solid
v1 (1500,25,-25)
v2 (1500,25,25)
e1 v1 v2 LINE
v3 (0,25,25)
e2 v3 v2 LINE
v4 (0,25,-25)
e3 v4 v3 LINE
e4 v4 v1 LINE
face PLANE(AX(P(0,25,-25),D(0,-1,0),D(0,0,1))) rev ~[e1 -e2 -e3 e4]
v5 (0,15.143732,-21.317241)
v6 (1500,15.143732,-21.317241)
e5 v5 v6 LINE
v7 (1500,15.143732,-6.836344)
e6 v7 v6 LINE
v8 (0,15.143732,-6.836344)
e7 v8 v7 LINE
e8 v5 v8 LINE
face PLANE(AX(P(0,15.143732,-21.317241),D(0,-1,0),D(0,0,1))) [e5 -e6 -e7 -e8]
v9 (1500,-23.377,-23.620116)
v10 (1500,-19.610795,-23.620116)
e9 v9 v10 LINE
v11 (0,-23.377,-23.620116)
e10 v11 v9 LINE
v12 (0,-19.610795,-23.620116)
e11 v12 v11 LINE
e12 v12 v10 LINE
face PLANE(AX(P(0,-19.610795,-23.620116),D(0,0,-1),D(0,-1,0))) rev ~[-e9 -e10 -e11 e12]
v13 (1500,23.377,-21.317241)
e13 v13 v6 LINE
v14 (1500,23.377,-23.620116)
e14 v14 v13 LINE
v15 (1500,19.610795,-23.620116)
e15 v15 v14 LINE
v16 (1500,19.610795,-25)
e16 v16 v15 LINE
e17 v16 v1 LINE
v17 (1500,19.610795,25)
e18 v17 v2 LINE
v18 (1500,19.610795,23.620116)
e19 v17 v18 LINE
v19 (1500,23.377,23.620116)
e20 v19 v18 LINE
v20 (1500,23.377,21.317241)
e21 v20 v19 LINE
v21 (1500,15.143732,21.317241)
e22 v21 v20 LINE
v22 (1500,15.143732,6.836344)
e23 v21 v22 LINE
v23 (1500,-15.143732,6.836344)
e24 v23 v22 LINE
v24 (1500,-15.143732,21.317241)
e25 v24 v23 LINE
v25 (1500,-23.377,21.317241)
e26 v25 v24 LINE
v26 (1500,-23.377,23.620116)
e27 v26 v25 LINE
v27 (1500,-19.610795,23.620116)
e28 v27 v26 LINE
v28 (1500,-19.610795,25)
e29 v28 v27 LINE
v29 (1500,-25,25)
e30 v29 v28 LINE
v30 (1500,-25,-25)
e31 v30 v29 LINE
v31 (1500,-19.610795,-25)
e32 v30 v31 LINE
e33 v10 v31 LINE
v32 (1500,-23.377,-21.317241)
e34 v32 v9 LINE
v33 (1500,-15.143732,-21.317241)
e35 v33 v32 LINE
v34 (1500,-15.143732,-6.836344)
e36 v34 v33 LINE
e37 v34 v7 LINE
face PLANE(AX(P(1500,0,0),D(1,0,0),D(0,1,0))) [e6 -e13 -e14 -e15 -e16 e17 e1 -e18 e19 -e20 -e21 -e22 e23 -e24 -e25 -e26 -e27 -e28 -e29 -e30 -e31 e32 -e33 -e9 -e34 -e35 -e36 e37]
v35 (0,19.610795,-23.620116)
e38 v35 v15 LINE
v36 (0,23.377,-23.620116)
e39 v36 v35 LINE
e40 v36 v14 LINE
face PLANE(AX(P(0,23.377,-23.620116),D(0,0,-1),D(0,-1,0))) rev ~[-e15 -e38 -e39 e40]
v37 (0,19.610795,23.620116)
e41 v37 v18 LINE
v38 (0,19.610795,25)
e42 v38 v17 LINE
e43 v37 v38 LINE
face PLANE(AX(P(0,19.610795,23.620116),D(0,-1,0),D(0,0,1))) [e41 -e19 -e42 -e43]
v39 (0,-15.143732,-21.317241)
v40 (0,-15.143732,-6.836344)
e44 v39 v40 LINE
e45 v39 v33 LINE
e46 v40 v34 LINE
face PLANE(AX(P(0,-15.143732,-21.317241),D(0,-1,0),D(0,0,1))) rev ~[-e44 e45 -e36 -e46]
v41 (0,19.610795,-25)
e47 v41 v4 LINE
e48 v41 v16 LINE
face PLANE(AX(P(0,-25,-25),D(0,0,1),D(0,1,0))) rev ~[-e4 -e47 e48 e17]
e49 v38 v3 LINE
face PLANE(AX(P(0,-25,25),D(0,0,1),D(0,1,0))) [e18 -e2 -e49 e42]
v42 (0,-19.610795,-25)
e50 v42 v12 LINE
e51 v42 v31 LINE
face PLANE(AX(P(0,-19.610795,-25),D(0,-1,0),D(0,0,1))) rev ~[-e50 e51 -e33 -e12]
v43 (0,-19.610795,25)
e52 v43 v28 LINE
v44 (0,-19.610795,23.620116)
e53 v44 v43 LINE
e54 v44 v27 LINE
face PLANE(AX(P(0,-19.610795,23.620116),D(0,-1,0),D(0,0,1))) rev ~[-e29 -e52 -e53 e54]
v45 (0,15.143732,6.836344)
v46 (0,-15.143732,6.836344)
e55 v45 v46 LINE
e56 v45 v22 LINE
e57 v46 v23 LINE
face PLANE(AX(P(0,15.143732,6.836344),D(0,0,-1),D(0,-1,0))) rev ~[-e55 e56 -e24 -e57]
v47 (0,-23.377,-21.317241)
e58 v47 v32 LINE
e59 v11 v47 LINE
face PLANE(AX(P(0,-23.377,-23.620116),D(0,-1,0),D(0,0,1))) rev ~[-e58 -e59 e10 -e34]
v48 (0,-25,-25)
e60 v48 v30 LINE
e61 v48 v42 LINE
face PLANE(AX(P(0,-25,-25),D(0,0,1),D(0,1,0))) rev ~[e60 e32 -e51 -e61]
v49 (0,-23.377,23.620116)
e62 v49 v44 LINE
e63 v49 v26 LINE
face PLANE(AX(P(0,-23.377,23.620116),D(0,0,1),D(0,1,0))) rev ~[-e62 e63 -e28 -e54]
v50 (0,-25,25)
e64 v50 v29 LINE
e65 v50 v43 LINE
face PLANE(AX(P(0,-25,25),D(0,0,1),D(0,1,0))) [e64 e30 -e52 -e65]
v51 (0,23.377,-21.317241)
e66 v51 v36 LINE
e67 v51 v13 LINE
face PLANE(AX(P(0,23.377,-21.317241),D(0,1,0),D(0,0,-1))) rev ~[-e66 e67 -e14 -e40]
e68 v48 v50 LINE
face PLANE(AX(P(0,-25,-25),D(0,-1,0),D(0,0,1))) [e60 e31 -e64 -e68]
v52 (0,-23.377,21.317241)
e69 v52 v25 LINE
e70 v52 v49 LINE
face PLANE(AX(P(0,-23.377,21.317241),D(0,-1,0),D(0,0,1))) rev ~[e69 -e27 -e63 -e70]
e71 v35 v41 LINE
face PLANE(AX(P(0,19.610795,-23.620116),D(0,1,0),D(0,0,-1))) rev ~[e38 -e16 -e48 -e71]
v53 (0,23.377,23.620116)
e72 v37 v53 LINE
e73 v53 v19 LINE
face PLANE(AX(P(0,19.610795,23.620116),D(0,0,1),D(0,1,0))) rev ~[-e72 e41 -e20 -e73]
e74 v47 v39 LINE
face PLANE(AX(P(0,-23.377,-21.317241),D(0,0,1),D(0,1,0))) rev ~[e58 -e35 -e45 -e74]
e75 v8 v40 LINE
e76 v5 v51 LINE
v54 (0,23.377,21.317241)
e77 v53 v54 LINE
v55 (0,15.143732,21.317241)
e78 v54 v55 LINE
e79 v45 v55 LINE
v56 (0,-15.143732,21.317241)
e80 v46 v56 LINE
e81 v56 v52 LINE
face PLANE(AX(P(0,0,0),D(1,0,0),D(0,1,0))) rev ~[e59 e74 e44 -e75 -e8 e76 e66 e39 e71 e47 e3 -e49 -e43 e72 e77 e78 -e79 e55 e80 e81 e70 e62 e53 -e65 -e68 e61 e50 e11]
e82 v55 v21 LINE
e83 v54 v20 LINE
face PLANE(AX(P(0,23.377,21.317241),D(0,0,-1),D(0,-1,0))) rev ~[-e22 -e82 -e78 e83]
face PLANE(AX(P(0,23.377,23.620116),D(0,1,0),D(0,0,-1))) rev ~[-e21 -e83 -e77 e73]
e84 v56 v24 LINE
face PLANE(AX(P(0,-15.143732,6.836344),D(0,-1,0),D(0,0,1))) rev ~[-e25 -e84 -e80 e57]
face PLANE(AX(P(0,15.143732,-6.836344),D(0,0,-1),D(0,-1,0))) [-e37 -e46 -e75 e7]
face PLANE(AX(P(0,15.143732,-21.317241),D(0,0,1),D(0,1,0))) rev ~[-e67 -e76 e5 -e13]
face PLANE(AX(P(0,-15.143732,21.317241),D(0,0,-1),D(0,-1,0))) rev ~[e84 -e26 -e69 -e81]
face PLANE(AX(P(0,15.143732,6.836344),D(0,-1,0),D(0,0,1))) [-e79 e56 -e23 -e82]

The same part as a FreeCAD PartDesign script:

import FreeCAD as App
import Part
import Sketcher
Q = App.Units.Quantity

doc = App.newDocument("Part")
body = doc.addObject("PartDesign::Body", "Body")

# Sketch on YZ plane
sketch1 = doc.addObject("Sketcher::SketchObject", "Sketch")
body.addObject(sketch1)
sketch1.AttachmentSupport = (doc.YZ_Plane, [""])
sketch1.MapMode = "FlatFace"
sketch1.addGeometry([
    Part.LineSegment(App.Vector(-25, 25, 0), App.Vector(-25, -25, 0)),
    Part.LineSegment(App.Vector(-25, -25, 0), App.Vector(25, -25, 0)),
    Part.LineSegment(App.Vector(25, -25, 0), App.Vector(25, 25, 0)),
    Part.LineSegment(App.Vector(25, 25, 0), App.Vector(-25, 25, 0)),
], False)
sketch1.addConstraint([
    Sketcher.Constraint("Coincident", 0, 2, 1, 1),
    Sketcher.Constraint("Coincident", 1, 2, 2, 1),
    Sketcher.Constraint("Coincident", 2, 2, 3, 1),
    Sketcher.Constraint("Coincident", 3, 2, 0, 1),
    Sketcher.Constraint("Vertical", 0),
    Sketcher.Constraint("Horizontal", 1),
    Sketcher.Constraint("Vertical", 2),
    Sketcher.Constraint("Horizontal", 3),
    Sketcher.Constraint("Symmetric", 0, 2, 2, 2, -1, 1),
    Sketcher.Constraint("Equal", 3, 0),
    Sketcher.Constraint("DistanceX", 1, 1, 1, 2, Q("50 mm")),
])
pad1 = doc.addObject("PartDesign::Pad", "Pad")
body.addObject(pad1)
pad1.Profile = sketch1
pad1.Length = 1500

# Sketch on YZ plane
sketch2 = doc.addObject("Sketcher::SketchObject", "Sketch001")
body.addObject(sketch2)
sketch2.AttachmentSupport = (doc.YZ_Plane, [""])
sketch2.MapMode = "FlatFace"
sketch2.addGeometry([
    Part.LineSegment(App.Vector(15.1, 21.3, 0), App.Vector(15.1, 6.8, 0)),  # 0
    Part.LineSegment(App.Vector(15.1, 6.8, 0), App.Vector(-15.1, 6.8, 0)),  # 1
    Part.LineSegment(App.Vector(-15.1, 6.8, 0), App.Vector(-15.1, 21.3, 0)),  # 2
    Part.LineSegment(App.Vector(-15.1, 21.3, 0), App.Vector(-23.4, 21.3, 0)),  # 3
    Part.LineSegment(App.Vector(-23.4, 21.3, 0), App.Vector(-23.4, 23.6, 0)),  # 4
    Part.LineSegment(App.Vector(-23.4, 23.6, 0), App.Vector(-19.6, 23.6, 0)),  # 5
    Part.LineSegment(App.Vector(-19.6, 23.6, 0), App.Vector(-19.6, 25, 0)),  # 6
    Part.LineSegment(App.Vector(-19.6, 25, 0), App.Vector(19.6, 25, 0)),  # 7
    Part.LineSegment(App.Vector(19.6, 25, 0), App.Vector(19.6, 23.6, 0)),  # 8
    Part.LineSegment(App.Vector(19.6, 23.6, 0), App.Vector(23.4, 23.6, 0)),  # 9
    Part.LineSegment(App.Vector(23.4, 23.6, 0), App.Vector(23.4, 21.3, 0)),  # 10
    Part.LineSegment(App.Vector(23.4, 21.3, 0), App.Vector(15.1, 21.3, 0)),  # 11
    Part.LineSegment(App.Vector(19.6, -25, 0), App.Vector(-19.6, -25, 0)),  # 12
    Part.LineSegment(App.Vector(-19.6, -25, 0), App.Vector(-19.6, -23.6, 0)),  # 13
    Part.LineSegment(App.Vector(-19.6, -23.6, 0), App.Vector(-23.4, -23.6, 0)),  # 14
    Part.LineSegment(App.Vector(-23.4, -23.6, 0), App.Vector(-23.4, -21.3, 0)),  # 15
    Part.LineSegment(App.Vector(-23.4, -21.3, 0), App.Vector(-15.1, -21.3, 0)),  # 16
    Part.LineSegment(App.Vector(-15.1, -21.3, 0), App.Vector(-15.1, -6.8, 0)),  # 17
    Part.LineSegment(App.Vector(-15.1, -6.8, 0), App.Vector(15.1, -6.8, 0)),  # 18
    Part.LineSegment(App.Vector(15.1, -6.8, 0), App.Vector(15.1, -21.3, 0)),  # 19
    Part.LineSegment(App.Vector(15.1, -21.3, 0), App.Vector(23.4, -21.3, 0)),  # 20
    Part.LineSegment(App.Vector(23.4, -21.3, 0), App.Vector(23.4, -23.6, 0)),  # 21
    Part.LineSegment(App.Vector(23.4, -23.6, 0), App.Vector(19.6, -23.6, 0)),  # 22
    Part.LineSegment(App.Vector(19.6, -23.6, 0), App.Vector(19.6, -25, 0)),  # 23
], False)
sketch2.addConstraint([
    Sketcher.Constraint("Coincident", 0, 2, 1, 1),
    Sketcher.Constraint("Coincident", 1, 2, 2, 1),
    Sketcher.Constraint("Coincident", 2, 2, 3, 1),
    Sketcher.Constraint("Coincident", 3, 2, 4, 1),
    Sketcher.Constraint("Coincident", 4, 2, 5, 1),
    Sketcher.Constraint("Coincident", 5, 2, 6, 1),
    Sketcher.Constraint("Coincident", 6, 2, 7, 1),
    Sketcher.Constraint("Coincident", 7, 2, 8, 1),
    Sketcher.Constraint("Coincident", 8, 2, 9, 1),
    Sketcher.Constraint("Coincident", 9, 2, 10, 1),
    Sketcher.Constraint("Coincident", 10, 2, 11, 1),
    Sketcher.Constraint("Coincident", 11, 2, 0, 1),
    Sketcher.Constraint("Coincident", 12, 2, 13, 1),
    Sketcher.Constraint("Coincident", 13, 2, 14, 1),
    Sketcher.Constraint("Coincident", 14, 2, 15, 1),
    Sketcher.Constraint("Coincident", 15, 2, 16, 1),
    Sketcher.Constraint("Coincident", 16, 2, 17, 1),
    Sketcher.Constraint("Coincident", 17, 2, 18, 1),
    Sketcher.Constraint("Coincident", 18, 2, 19, 1),
    Sketcher.Constraint("Coincident", 19, 2, 20, 1),
    Sketcher.Constraint("Coincident", 20, 2, 21, 1),
    Sketcher.Constraint("Coincident", 21, 2, 22, 1),
    Sketcher.Constraint("Coincident", 22, 2, 23, 1),
    Sketcher.Constraint("Coincident", 23, 2, 12, 1),
    Sketcher.Constraint("Vertical", 0),
    Sketcher.Constraint("Horizontal", 1),
    Sketcher.Constraint("Vertical", 2),
    Sketcher.Constraint("Horizontal", 3),
    Sketcher.Constraint("Vertical", 4),
    Sketcher.Constraint("Horizontal", 5),
    Sketcher.Constraint("Vertical", 6),
    Sketcher.Constraint("Horizontal", 7),
    Sketcher.Constraint("Vertical", 8),
    Sketcher.Constraint("Horizontal", 9),
    Sketcher.Constraint("Vertical", 10),
    Sketcher.Constraint("Horizontal", 11),
    Sketcher.Constraint("Horizontal", 12),
    Sketcher.Constraint("Vertical", 13),
    Sketcher.Constraint("Horizontal", 14),
    Sketcher.Constraint("Vertical", 15),
    Sketcher.Constraint("Horizontal", 16),
    Sketcher.Constraint("Vertical", 17),
    Sketcher.Constraint("Horizontal", 18),
    Sketcher.Constraint("Vertical", 19),
    Sketcher.Constraint("Horizontal", 20),
    Sketcher.Constraint("Vertical", 21),
    Sketcher.Constraint("Horizontal", 22),
    Sketcher.Constraint("Vertical", 23),
    Sketcher.Constraint("Symmetric", 7, 2, 12, 2, -1, 1),
    Sketcher.Constraint("Symmetric", 9, 2, 14, 2, -1, 1),
    Sketcher.Constraint("Symmetric", 11, 2, 16, 2, -1, 1),
    Sketcher.Constraint("Symmetric", 1, 2, 18, 2, -1, 1),
    Sketcher.Constraint("Symmetric", 3, 2, 20, 2, -1, 1),
    Sketcher.Constraint("Symmetric", 5, 2, 22, 2, -1, 1),
    Sketcher.Constraint("Symmetric", 5, 2, 8, 2, -2),
    Sketcher.Constraint("Symmetric", 3, 2, 10, 2, -2),
    Sketcher.Constraint("Vertical", 2, 2, 16, 2),
    Sketcher.Constraint("DistanceY", -1, 1, 6, 2, Q("25 mm")),
    Sketcher.Constraint("DistanceX", 3, 2, -1, 1, Q("23.377 mm")),
    Sketcher.Constraint("DistanceX", 3, 2, 3, 1, Q("8.233269 mm")),
    Sketcher.Constraint("DistanceX", 7, 1, 7, 2, Q("39.22159 mm")),
    Sketcher.Constraint("DistanceY", 0, 2, 0, 1, Q("14.480897 mm")),
    Sketcher.Constraint("DistanceY", 4, 1, 4, 2, Q("2.302875 mm")),
    Sketcher.Constraint("DistanceY", 6, 1, 6, 2, Q("1.379884 mm")),
])
pocket1 = doc.addObject("PartDesign::Pocket", "Pocket")
body.addObject(pocket1)
pocket1.Profile = sketch2
pocket1.Type = "ThroughAll"
pocket1.Reversed = True

doc.recompute()
